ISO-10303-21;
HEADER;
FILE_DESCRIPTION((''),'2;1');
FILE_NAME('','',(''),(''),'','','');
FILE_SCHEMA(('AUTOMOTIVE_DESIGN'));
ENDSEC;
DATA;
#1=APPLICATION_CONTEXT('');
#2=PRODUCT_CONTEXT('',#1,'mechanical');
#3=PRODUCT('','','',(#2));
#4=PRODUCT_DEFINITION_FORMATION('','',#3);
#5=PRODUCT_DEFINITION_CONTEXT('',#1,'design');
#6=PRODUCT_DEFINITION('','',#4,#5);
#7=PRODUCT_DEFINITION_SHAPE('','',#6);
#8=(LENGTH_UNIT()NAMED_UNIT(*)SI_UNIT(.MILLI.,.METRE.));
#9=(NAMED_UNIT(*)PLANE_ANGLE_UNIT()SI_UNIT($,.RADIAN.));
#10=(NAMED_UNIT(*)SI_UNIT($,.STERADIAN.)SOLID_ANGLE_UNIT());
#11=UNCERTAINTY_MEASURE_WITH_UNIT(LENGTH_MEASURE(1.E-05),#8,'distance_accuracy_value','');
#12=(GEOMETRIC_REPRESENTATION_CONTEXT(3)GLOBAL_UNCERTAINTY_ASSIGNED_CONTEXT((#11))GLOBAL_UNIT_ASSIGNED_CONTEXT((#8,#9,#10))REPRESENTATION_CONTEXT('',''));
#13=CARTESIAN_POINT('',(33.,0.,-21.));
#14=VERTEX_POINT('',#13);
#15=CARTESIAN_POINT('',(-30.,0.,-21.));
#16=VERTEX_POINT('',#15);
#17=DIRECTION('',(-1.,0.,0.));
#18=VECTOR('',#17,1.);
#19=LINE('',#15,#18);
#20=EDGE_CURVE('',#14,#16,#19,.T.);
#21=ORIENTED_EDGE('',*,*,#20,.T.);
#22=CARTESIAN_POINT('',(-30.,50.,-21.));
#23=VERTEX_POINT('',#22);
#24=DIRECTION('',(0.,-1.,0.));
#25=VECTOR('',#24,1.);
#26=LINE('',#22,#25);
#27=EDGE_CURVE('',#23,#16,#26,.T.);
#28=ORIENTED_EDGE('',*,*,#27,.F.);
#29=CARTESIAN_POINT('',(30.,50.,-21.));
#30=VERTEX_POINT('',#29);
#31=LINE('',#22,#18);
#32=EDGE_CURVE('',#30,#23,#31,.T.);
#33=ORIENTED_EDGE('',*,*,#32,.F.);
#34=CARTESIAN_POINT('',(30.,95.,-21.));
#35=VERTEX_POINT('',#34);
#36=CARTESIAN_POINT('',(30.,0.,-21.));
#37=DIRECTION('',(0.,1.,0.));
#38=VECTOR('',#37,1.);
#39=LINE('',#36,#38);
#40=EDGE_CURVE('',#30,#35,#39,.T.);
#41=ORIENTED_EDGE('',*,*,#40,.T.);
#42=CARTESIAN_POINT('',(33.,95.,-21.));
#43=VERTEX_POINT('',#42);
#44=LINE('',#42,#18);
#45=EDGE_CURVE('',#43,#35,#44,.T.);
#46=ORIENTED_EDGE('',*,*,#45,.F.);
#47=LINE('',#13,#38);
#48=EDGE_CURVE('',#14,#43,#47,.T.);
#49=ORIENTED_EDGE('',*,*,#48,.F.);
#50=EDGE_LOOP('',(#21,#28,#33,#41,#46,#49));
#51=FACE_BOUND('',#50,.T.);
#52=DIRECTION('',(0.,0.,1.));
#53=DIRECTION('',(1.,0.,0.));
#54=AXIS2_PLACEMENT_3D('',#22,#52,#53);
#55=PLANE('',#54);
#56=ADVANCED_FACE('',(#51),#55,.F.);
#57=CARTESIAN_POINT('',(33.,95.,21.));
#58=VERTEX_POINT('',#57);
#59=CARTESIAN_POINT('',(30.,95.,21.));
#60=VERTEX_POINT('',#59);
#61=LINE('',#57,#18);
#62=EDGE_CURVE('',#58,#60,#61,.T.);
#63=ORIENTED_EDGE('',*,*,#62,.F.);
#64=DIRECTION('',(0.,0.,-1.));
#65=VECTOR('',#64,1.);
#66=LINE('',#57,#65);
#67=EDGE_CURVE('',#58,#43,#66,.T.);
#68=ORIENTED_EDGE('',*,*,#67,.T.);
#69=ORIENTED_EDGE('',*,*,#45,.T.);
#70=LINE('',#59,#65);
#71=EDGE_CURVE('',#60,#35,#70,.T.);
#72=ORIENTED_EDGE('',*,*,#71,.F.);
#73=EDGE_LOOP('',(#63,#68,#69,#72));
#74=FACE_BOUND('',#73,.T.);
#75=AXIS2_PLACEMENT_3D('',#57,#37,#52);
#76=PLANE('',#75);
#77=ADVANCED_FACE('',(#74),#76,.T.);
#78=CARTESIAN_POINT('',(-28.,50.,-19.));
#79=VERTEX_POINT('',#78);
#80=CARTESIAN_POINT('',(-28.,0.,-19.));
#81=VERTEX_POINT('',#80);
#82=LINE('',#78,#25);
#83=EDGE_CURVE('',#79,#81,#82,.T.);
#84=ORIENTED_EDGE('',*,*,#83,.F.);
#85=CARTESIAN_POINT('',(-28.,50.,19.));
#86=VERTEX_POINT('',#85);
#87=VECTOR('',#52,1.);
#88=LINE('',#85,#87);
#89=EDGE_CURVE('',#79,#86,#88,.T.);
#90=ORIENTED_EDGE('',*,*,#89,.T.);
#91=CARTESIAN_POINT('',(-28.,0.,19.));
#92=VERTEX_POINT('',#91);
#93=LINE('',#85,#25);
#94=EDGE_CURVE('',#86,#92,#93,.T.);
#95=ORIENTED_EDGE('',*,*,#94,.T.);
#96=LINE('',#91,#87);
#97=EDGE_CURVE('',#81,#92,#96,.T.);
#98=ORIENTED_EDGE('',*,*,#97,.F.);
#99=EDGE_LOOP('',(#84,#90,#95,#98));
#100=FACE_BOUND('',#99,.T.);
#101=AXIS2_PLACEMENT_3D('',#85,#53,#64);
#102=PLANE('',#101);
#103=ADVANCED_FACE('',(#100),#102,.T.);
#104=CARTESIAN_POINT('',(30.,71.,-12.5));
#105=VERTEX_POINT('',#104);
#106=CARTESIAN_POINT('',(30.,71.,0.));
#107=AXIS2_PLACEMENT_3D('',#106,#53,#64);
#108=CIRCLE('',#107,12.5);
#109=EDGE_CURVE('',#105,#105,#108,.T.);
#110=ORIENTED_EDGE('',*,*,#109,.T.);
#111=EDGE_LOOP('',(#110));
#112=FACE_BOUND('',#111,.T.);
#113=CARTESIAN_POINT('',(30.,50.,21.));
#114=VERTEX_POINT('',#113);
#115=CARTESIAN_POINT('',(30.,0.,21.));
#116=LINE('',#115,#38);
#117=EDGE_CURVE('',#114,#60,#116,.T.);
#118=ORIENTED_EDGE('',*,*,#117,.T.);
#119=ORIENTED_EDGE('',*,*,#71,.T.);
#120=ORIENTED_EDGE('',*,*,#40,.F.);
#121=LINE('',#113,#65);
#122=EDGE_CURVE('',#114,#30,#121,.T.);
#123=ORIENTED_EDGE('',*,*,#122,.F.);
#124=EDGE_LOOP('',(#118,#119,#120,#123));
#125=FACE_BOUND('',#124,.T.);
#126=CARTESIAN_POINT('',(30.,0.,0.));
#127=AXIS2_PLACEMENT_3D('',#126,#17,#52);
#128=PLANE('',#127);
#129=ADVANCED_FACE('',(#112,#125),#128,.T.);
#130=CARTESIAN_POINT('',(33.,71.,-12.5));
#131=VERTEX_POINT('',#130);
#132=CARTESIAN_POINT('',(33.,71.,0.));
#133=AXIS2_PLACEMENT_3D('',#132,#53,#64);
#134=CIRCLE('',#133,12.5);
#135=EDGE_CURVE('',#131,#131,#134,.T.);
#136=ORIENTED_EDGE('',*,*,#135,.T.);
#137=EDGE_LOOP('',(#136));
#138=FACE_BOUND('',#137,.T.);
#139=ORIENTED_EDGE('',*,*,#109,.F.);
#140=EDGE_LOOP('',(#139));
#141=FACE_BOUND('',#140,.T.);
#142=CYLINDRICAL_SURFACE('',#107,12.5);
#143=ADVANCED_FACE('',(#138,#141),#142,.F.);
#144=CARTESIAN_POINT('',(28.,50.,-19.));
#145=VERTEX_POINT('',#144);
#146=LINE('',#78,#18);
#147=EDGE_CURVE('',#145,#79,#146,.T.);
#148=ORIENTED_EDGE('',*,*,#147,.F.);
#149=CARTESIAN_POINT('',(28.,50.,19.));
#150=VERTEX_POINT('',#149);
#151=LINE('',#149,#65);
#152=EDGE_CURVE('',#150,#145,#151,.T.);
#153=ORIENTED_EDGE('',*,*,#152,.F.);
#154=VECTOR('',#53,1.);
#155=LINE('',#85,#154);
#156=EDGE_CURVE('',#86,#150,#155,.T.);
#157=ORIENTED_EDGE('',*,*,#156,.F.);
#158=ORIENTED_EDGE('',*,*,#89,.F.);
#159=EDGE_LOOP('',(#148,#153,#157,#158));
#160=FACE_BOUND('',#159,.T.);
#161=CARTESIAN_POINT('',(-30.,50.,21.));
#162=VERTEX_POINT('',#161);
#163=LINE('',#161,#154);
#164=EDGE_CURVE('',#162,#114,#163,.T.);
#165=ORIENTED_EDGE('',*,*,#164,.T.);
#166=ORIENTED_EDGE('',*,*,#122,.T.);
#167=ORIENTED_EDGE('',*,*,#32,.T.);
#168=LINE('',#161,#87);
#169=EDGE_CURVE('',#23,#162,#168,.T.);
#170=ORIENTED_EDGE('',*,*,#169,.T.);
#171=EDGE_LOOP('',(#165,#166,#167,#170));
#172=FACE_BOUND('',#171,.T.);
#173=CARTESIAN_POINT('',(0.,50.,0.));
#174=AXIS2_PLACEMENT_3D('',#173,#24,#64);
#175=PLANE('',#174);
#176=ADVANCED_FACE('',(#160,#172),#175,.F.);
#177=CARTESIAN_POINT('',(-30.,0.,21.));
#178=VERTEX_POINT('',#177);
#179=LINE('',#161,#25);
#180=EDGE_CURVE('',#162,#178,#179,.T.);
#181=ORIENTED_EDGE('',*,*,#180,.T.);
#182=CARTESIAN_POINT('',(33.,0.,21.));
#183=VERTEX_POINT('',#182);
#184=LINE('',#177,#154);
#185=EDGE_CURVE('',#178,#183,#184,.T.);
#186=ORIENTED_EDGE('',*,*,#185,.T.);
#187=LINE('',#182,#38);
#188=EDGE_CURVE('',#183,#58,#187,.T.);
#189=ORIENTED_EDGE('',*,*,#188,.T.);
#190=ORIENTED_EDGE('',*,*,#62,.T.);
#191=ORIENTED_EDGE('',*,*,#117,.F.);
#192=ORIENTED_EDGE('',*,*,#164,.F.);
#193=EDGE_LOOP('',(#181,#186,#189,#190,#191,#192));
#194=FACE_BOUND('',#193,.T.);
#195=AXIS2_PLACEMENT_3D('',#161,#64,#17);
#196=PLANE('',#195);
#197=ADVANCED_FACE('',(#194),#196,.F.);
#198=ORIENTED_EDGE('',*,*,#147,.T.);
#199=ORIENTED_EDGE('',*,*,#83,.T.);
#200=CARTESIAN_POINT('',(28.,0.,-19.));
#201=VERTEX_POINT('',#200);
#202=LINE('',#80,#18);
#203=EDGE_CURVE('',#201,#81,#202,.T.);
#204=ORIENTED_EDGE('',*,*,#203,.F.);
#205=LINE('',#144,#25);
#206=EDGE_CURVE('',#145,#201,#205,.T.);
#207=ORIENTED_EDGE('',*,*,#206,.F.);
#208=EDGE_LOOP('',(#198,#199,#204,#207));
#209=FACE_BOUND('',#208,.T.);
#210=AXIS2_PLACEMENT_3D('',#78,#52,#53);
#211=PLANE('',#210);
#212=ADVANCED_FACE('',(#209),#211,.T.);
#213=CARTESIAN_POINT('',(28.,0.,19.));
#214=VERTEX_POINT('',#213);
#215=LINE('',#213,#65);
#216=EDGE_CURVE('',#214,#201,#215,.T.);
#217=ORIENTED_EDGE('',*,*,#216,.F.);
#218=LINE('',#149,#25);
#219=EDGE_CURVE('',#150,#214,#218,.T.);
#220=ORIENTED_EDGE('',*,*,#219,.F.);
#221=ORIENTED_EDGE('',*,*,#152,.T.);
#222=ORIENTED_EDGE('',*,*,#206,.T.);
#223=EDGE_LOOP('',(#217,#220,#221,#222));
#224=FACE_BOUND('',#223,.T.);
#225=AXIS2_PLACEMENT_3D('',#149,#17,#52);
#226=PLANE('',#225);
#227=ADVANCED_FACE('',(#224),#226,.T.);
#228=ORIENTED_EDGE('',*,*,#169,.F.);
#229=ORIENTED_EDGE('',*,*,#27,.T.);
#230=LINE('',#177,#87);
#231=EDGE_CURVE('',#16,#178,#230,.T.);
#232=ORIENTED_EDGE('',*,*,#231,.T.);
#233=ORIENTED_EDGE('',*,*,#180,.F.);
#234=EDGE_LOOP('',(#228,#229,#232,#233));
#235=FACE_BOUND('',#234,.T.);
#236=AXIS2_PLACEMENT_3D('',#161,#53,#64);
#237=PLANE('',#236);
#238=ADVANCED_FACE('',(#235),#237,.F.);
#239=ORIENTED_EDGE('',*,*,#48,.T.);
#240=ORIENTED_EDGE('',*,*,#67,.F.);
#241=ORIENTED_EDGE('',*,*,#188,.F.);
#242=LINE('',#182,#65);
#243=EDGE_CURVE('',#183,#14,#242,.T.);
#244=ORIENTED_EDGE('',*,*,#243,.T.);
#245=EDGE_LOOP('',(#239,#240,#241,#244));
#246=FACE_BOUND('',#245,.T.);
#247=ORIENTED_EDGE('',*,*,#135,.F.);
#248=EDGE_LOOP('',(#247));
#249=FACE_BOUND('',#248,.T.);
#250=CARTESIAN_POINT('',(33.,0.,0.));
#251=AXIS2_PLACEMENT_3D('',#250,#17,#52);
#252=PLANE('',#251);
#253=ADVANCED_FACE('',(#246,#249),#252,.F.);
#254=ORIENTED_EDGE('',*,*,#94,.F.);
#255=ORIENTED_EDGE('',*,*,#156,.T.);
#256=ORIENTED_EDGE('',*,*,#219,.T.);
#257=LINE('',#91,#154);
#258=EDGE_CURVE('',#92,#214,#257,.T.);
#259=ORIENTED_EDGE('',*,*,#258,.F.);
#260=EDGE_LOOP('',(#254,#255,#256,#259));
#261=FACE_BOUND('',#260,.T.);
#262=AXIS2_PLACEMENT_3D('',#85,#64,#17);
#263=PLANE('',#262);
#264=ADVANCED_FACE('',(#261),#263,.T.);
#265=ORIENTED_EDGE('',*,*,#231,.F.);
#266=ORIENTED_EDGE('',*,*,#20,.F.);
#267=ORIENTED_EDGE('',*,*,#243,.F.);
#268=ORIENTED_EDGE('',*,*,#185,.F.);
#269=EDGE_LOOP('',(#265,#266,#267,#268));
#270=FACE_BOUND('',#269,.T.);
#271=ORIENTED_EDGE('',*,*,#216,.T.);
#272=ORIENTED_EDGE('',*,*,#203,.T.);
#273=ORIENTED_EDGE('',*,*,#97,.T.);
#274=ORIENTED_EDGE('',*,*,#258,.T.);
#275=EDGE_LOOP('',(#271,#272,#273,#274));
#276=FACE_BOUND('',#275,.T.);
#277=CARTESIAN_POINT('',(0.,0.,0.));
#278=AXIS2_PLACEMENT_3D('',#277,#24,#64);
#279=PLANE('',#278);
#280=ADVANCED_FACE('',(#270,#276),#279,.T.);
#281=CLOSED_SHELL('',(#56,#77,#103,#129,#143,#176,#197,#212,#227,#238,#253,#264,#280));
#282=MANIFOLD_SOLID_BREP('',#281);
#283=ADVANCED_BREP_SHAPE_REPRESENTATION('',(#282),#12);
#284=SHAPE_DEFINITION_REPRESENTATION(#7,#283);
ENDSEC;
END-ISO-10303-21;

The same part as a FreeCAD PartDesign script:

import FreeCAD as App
import Part
import Sketcher
from FreeCAD import Vector


def add_polygon(sketch, points):
    """Adds a closed chain of lines whose ends are joined by coincident constraints."""
    first, n = sketch.GeometryCount, len(points)
    for a, b in zip(points, points[1:] + points[:1]):
        sketch.addGeometry(Part.LineSegment(App.Vector(*a, 0), App.Vector(*b, 0)), False)
    for i in range(n):
        sketch.addConstraint(Sketcher.Constraint("Coincident", first + i, 2, first + (i + 1) % n, 1))

doc = App.newDocument("Part")
params = doc.addObject("Spreadsheet::Sheet", "Params")
for row, (alias, value) in enumerate([
    ("sketch1_width", "60 mm"),
    ("sketch1_width2", "56 mm"),
    ("sketch1_height", "42 mm"),
    ("sketch1_height2", "38 mm"),
    ("pad1_length", "50 mm"),
    ("sketch2_width", "95 mm"),
    ("sketch2_height", "42 mm"),
    ("pad2_length", "3 mm"),
    ("sketch3_diameter", "25 mm"),
    ("pocket1_length", "3 mm"),
], start=1):
    params.set(f"A{row}", alias)
    params.set(f"B{row}", "=" + value)
    params.setAlias(f"B{row}", alias)

body = doc.addObject("PartDesign::Body", "Body")

# Sketch on XZ plane
sketch1 = doc.addObject("Sketcher::SketchObject", "Sketch")
body.addObject(sketch1)
sketch1.AttachmentSupport = (doc.XZ_Plane, [""])
sketch1.MapMode = "FlatFace"
add_polygon(sketch1, [(-30, -21), (-30, 21), (30, 21), (30, -21)])  # lines 0-3
add_polygon(sketch1, [(28, 19), (-28, 19), (-28, -19), (28, -19)])  # lines 4-7
sketch1.addConstraint([
    Sketcher.Constraint("Vertical", 0),
    Sketcher.Constraint("Horizontal", 1),
    Sketcher.Constraint("Vertical", 2),
    Sketcher.Constraint("Horizontal", 3),
    Sketcher.Constraint("Horizontal", 4),
    Sketcher.Constraint("Vertical", 5),
    Sketcher.Constraint("Horizontal", 6),
    Sketcher.Constraint("Vertical", 7),
    Sketcher.Constraint("Symmetric", 0, 2, 2, 2, -1, 1),
    Sketcher.Constraint("Symmetric", 4, 2, 6, 2, -1, 1),
    Sketcher.Constraint("DistanceX", 1, 1, 1, 2, 60.0),
    Sketcher.Constraint("DistanceX", 4, 2, 4, 1, 56.0),
    Sketcher.Constraint("DistanceY", 0, 1, 0, 2, 42.0),
    Sketcher.Constraint("DistanceY", 5, 2, 5, 1, 38.0),
])
sketch1.setExpression("Constraints[18]", "Params.sketch1_width")
sketch1.setExpression("Constraints[19]", "Params.sketch1_width2")
sketch1.setExpression("Constraints[20]", "Params.sketch1_height")
sketch1.setExpression("Constraints[21]", "Params.sketch1_height2")
pad1 = doc.addObject("PartDesign::Pad", "Pad")
body.addObject(pad1)
pad1.Profile = sketch1
pad1.setExpression("Length", "Params.pad1_length")
pad1.Reversed = True

# Sketch on YZ plane
sketch2 = doc.addObject("Sketcher::SketchObject", "Sketch001")
body.addObject(sketch2)
sketch2.AttachmentSupport = (doc.YZ_Plane, [""])
sketch2.MapMode = "FlatFace"
sketch2.AttachmentOffset = App.Placement(Vector(0, 0, 30), App.Rotation())
add_polygon(sketch2, [(95, 21), (0, 21), (0, -21), (95, -21)])  # lines 0-3
sketch2.addConstraint([
    Sketcher.Constraint("Horizontal", 0),
    Sketcher.Constraint("Vertical", 1),
    Sketcher.Constraint("Horizontal", 2),
    Sketcher.Constraint("Vertical", 3),
    Sketcher.Constraint("Symmetric", 0, 2, 1, 2, -1, 1),
    Sketcher.Constraint("DistanceX", 0, 2, 0, 1, 95.0),
    Sketcher.Constraint("DistanceY", 1, 2, 1, 1, 42.0),
])
sketch2.setExpression("Constraints[9]", "Params.sketch2_width")
sketch2.setExpression("Constraints[10]", "Params.sketch2_height")
pad2 = doc.addObject("PartDesign::Pad", "Pad001")
body.addObject(pad2)
pad2.Profile = sketch2
pad2.setExpression("Length", "Params.pad2_length")

# Sketch on YZ plane
sketch3 = doc.addObject("Sketcher::SketchObject", "Sketch002")
body.addObject(sketch3)
sketch3.AttachmentSupport = (doc.YZ_Plane, [""])
sketch3.MapMode = "FlatFace"
sketch3.AttachmentOffset = App.Placement(Vector(0, 0, 33), App.Rotation())
sketch3.addGeometry(Part.Circle(Vector(71, 0, 0), Vector(0, 0, 1), 12.5), False)
sketch3.addConstraint([
    Sketcher.Constraint("PointOnObject", 0, 3, -1),
    Sketcher.Constraint("Diameter", 0, 25.0),
    Sketcher.Constraint("DistanceX", -1, 1, 0, 3, 71.0),
])
sketch3.setExpression("Constraints[1]", "Params.sketch3_diameter")
pocket1 = doc.addObject("PartDesign::Pocket", "Pocket")
body.addObject(pocket1)
pocket1.Profile = sketch3
pocket1.setExpression("Length", "Params.pocket1_length")

doc.recompute()
